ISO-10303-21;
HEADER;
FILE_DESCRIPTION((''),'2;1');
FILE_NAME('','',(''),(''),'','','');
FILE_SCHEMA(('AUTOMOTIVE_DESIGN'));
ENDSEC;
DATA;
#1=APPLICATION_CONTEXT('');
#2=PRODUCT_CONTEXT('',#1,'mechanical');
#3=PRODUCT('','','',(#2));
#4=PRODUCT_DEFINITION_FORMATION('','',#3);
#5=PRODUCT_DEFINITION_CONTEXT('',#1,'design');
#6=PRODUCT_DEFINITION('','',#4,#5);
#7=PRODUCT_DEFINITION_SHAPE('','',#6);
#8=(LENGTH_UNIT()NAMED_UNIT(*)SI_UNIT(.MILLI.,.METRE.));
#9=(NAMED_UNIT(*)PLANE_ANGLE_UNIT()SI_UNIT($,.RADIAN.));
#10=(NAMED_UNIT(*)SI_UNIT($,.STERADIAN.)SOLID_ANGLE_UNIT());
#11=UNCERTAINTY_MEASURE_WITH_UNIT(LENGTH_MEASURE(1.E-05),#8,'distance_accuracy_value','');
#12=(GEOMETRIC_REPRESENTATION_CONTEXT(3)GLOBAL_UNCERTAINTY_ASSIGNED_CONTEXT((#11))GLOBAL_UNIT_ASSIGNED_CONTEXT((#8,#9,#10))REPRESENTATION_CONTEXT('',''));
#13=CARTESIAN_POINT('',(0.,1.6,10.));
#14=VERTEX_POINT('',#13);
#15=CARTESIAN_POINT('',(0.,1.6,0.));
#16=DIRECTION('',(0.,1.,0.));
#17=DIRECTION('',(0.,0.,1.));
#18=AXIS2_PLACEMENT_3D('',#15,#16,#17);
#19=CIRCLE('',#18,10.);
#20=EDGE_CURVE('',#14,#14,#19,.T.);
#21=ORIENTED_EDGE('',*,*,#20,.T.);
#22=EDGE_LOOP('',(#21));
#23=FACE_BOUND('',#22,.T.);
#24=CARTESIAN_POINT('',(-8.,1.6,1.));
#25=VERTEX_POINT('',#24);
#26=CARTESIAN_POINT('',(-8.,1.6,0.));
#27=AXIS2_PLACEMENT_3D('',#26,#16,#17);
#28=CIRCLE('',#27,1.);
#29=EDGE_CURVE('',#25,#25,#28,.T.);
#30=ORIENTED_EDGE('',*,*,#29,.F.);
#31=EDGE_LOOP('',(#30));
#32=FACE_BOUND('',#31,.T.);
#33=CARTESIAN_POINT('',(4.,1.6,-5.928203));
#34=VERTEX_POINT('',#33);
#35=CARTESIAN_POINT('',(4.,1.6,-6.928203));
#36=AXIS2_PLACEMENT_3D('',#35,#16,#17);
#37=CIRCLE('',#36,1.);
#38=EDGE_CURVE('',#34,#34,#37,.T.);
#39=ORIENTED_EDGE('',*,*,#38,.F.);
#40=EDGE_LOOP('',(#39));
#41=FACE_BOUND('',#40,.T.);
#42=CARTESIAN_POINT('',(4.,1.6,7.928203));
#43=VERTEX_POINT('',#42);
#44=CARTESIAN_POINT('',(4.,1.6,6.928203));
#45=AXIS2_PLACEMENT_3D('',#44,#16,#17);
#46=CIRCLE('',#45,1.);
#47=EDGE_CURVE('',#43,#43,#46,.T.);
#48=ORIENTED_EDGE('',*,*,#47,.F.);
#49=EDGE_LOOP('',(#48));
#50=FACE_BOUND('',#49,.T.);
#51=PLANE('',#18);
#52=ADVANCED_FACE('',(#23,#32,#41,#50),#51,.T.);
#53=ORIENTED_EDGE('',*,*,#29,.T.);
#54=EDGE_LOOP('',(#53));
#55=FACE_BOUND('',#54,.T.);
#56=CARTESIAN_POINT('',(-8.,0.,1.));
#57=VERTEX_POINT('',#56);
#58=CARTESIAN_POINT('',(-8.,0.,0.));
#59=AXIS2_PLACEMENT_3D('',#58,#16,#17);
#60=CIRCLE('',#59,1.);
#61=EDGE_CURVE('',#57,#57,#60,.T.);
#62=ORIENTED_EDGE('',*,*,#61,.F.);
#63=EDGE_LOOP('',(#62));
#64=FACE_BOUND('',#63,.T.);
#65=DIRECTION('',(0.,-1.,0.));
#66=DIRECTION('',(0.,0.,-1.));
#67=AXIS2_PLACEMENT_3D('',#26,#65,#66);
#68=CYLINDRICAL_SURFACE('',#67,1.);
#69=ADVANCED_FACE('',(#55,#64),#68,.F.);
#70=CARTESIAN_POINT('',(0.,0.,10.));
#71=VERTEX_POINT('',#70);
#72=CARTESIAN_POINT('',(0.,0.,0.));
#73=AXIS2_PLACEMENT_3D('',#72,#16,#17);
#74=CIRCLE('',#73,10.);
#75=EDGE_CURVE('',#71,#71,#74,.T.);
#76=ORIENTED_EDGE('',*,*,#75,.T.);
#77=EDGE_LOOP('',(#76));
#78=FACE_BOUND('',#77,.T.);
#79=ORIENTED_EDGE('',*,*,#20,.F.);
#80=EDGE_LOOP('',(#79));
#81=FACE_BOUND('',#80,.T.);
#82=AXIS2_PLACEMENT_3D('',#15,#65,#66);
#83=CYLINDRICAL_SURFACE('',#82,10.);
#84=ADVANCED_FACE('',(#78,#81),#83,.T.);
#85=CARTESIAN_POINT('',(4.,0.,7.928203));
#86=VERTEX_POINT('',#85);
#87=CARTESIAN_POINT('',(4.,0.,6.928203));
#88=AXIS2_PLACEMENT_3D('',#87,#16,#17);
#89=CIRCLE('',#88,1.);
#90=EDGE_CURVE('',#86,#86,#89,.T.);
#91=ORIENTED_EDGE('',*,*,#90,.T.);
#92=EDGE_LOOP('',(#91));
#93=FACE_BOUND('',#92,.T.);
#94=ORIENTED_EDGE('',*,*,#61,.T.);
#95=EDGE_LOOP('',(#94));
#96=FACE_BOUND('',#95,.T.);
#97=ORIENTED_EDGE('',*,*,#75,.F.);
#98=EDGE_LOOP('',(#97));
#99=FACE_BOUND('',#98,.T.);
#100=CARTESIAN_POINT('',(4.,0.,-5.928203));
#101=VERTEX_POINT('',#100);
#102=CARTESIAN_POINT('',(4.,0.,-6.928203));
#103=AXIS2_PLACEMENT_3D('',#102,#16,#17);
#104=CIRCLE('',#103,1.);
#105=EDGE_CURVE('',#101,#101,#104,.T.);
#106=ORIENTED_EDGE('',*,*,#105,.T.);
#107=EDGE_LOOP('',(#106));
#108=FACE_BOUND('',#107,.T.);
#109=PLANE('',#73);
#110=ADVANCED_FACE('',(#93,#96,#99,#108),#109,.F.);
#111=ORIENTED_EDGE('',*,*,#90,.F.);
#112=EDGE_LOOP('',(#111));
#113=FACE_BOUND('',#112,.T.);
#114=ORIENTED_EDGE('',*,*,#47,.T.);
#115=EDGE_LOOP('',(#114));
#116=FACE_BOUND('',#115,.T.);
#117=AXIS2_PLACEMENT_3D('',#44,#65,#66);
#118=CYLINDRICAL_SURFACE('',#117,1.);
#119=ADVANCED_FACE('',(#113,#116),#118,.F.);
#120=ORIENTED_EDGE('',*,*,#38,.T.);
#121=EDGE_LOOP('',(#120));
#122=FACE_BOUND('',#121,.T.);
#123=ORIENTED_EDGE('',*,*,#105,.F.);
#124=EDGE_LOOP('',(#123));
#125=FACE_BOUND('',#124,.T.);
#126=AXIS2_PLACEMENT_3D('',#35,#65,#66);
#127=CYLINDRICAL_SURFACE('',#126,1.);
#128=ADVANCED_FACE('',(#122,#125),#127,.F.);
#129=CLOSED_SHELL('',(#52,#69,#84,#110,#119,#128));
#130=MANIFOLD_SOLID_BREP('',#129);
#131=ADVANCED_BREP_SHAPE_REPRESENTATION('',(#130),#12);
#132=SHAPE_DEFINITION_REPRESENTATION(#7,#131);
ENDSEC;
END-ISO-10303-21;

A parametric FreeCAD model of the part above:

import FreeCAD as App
import Part
import Sketcher
from FreeCAD import Vector
Q = App.Units.Quantity

doc = App.newDocument("Part")
body = doc.addObject("PartDesign::Body", "Body")

# Sketch on XZ plane
sketch1 = body.newObject("Sketcher::SketchObject", "Sketch")
sketch1.AttachmentSupport = (doc.getObject("XZ_Plane"), [""])
sketch1.MapMode = "FlatFace"
sketch1.addGeometry(Part.Circle(Vector(0, 0, 0), Vector(0, 0, 1), 10), False)
sketch1.addGeometry(Part.Circle(Vector(-8, 0, 0), Vector(0, 0, 1), 1), False)
sketch1.addGeometry(Part.Circle(Vector(4, -6.9, 0), Vector(0, 0, 1), 1), False)
sketch1.addGeometry(Part.Circle(Vector(4, 6.9, 0), Vector(0, 0, 1), 1), False)
sketch1.addConstraint(Sketcher.Constraint("Coincident", 0, 3, -1, 1))
sketch1.addConstraint(Sketcher.Constraint("Equal", 1, 2))
sketch1.addConstraint(Sketcher.Constraint("Equal", 2, 3))
sketch1.addConstraint(Sketcher.Constraint("Symmetric", 2, 3, 3, 3, -1))
sketch1.addConstraint(Sketcher.Constraint("PointOnObject", 1, 3, -1))
sketch1.addConstraint(Sketcher.Constraint("Diameter", 0, Q("20 mm")))
sketch1.addConstraint(Sketcher.Constraint("Diameter", 1, Q("2 mm")))
sketch1.addConstraint(Sketcher.Constraint("DistanceX", 1, 3, -1, 1, Q("8 mm")))
sketch1.addConstraint(Sketcher.Constraint("DistanceX", -1, 1, 2, 3, Q("4 mm")))
sketch1.addConstraint(Sketcher.Constraint("DistanceY", 2, 3, -1, 1, Q("6.928203 mm")))
pad1 = body.newObject("PartDesign::Pad", "Pad")
pad1.Profile = sketch1
pad1.Length = 1.6
pad1.Reversed = True

doc.recompute()
